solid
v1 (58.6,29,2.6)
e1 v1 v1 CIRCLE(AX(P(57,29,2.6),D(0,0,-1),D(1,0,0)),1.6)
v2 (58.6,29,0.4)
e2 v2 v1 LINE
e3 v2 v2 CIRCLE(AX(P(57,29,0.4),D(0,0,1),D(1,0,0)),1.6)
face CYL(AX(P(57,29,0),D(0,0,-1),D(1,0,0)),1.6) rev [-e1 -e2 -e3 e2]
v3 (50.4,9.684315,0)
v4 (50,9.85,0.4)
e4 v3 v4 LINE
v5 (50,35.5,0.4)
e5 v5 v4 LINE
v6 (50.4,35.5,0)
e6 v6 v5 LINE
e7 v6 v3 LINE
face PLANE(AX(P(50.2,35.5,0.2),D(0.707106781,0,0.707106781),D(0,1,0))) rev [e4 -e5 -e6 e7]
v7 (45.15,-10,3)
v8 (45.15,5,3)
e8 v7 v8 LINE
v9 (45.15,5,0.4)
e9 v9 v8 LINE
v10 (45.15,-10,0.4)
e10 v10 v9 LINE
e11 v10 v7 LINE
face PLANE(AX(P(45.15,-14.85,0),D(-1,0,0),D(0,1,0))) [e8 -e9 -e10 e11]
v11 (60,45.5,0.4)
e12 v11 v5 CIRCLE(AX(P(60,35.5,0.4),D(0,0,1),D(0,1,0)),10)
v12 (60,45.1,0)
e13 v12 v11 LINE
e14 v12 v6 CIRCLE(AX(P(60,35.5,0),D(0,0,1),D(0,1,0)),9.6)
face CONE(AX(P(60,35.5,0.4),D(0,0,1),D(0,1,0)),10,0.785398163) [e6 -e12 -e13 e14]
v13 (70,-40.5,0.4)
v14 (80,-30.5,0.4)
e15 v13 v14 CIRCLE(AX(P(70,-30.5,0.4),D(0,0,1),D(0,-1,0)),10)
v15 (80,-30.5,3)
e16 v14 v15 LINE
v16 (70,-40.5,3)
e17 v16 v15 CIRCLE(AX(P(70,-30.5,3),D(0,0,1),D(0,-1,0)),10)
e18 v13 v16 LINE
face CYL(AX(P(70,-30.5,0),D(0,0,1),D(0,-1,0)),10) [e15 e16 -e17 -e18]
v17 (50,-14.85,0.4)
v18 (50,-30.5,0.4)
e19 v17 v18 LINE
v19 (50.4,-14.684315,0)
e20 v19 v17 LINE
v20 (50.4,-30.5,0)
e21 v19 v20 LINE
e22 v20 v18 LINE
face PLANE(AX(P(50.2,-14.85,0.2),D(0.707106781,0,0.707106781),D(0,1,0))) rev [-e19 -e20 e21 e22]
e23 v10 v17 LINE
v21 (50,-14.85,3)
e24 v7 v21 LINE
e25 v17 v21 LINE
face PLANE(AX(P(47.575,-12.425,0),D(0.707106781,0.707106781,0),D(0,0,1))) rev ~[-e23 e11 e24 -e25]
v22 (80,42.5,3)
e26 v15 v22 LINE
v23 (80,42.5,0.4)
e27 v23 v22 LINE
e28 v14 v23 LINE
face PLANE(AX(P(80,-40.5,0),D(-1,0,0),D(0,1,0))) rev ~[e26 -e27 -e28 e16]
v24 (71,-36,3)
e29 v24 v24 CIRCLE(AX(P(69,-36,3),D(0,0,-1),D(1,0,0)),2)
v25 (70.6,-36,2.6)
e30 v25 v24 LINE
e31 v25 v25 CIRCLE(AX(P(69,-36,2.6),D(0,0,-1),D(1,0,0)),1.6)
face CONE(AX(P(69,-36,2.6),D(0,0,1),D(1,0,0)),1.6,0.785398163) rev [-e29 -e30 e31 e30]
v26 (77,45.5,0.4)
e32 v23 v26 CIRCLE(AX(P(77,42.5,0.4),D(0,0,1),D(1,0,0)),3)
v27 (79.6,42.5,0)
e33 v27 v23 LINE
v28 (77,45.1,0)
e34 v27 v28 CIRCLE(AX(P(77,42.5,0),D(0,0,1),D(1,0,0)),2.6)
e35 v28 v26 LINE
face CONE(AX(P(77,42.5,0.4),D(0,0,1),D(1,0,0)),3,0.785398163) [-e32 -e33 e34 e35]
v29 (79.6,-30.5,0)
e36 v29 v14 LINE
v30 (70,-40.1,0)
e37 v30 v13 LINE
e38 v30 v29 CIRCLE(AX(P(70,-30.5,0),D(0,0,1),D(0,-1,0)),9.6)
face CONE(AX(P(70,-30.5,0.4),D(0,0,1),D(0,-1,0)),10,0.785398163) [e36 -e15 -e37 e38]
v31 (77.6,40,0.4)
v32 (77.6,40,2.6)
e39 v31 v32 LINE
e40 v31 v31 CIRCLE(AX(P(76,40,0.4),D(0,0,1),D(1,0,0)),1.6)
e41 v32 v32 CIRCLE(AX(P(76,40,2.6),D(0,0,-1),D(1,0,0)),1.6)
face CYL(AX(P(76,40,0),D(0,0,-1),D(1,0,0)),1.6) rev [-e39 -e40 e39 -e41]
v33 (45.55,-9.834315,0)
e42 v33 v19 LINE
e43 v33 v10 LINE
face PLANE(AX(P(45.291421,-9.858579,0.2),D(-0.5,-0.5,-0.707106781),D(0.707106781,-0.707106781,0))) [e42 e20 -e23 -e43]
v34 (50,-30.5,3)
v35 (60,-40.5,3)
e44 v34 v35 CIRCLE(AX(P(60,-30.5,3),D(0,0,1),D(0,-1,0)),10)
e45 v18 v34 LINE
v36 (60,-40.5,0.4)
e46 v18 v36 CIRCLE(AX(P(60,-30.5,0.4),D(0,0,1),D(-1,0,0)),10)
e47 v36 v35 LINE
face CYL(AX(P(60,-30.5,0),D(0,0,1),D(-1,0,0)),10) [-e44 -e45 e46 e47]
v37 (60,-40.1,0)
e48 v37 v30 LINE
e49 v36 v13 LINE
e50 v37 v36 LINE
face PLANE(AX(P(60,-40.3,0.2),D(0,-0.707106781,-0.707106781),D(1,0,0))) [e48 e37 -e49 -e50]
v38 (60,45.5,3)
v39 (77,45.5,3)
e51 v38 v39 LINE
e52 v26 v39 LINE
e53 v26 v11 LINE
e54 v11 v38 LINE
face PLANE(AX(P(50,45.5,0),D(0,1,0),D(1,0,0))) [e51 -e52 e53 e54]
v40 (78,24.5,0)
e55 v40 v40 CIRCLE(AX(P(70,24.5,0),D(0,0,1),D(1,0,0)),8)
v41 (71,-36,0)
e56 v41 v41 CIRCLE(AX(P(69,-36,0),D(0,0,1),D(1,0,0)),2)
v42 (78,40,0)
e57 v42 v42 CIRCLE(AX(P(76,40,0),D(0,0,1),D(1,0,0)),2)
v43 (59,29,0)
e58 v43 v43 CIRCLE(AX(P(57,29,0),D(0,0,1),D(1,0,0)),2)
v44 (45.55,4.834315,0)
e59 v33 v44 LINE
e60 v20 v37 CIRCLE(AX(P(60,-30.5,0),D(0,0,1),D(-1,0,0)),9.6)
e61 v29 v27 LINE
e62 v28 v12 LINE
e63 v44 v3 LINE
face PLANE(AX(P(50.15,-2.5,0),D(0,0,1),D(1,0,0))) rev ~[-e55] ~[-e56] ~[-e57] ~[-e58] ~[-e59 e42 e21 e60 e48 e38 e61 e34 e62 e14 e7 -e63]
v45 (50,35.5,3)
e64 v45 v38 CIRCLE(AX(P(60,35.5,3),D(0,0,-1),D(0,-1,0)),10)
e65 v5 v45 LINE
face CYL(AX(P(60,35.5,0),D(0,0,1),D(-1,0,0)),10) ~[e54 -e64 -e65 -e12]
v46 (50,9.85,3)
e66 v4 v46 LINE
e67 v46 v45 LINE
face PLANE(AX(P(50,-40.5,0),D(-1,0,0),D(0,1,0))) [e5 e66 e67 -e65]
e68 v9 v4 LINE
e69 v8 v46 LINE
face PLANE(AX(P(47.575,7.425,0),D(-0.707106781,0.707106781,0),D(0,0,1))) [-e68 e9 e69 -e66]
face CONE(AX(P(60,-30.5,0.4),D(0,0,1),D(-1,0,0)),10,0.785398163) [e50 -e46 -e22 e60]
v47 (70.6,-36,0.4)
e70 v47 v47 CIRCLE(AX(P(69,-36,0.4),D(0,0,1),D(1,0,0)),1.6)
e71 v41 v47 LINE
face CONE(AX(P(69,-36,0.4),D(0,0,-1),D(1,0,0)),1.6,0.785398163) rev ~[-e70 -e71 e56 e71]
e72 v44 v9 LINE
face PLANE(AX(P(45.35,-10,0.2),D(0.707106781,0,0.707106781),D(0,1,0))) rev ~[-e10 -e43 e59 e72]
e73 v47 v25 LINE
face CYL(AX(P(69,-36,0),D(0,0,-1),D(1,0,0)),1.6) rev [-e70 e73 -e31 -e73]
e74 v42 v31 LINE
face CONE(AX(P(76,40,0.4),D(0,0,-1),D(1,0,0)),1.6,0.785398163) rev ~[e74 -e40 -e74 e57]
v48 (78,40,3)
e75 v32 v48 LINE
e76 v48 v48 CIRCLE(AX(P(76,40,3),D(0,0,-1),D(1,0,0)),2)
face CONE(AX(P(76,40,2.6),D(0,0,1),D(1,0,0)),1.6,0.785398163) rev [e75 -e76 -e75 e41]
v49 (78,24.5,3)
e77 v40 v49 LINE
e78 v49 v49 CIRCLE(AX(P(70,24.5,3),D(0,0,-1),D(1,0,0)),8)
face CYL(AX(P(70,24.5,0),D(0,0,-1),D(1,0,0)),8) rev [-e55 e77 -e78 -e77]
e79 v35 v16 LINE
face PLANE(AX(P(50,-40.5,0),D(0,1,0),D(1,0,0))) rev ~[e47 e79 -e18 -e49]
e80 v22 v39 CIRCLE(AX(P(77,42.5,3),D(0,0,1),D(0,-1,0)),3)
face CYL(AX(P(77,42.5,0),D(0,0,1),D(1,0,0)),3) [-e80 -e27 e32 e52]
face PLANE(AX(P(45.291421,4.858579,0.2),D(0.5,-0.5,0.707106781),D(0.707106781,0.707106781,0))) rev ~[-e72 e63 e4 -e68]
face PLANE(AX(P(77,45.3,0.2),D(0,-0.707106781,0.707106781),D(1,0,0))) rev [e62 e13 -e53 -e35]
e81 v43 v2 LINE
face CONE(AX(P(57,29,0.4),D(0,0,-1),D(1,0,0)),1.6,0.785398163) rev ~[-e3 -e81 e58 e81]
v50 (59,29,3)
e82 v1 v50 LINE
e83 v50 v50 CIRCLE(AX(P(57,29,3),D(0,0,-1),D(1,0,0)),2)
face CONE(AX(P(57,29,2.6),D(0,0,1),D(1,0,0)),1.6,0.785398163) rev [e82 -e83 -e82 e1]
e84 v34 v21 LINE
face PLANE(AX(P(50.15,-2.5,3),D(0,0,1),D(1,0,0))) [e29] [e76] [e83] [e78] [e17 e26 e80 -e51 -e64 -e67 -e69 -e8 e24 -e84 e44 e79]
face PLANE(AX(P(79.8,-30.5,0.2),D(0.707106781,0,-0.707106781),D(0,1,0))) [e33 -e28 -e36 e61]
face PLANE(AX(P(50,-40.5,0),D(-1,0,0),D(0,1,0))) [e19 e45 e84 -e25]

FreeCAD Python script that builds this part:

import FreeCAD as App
import Part
import Sketcher
from FreeCAD import Vector


def edges_at(feature, points):
    """Names of the edges that pass closest to the given points."""
    edges = feature.Shape.Edges
    near = lambda p: min(range(len(edges)), key=lambda i: edges[i].distToShape(Part.Vertex(*p))[0])
    return sorted({f"Edge{near(p) + 1}" for p in points})


def add_polygon(sketch, points):
    """Adds a closed chain of lines whose ends are joined by coincident constraints."""
    first, n = sketch.GeometryCount, len(points)
    for a, b in zip(points, points[1:] + points[:1]):
        sketch.addGeometry(Part.LineSegment(App.Vector(*a, 0), App.Vector(*b, 0)), False)
    for i in range(n):
        sketch.addConstraint(Sketcher.Constraint("Coincident", first + i, 2, first + (i + 1) % n, 1))

doc = App.newDocument("Part")
body = doc.addObject("PartDesign::Body", "Body")

sketch1 = body.newObject("Sketcher::SketchObject", "Sketch")
sketch1.AttachmentSupport = (doc.getObject("XY_Plane"), [""])
sketch1.MapMode = "FlatFace"
sketch1.addGeometry(Part.Circle(Vector(70, 24.5, 0), Vector(0, 0, 1), 8), False)
sketch1.addConstraint(Sketcher.Constraint("Diameter", 0, 16.0))
sketch1.addConstraint(Sketcher.Constraint("DistanceX", -1, 1, 0, 3, 70.0))
sketch1.addConstraint(Sketcher.Constraint("DistanceY", -1, 1, 0, 3, 24.5))
pad1 = body.newObject("PartDesign::Pad", "Pad")
pad1.Profile = sketch1
pad1.Length = 10
body2 = doc.addObject("PartDesign::Body", "Body001")

sketch2 = body2.newObject("Sketcher::SketchObject", "Sketch001")
sketch2.AttachmentSupport = (doc.getObject("XY_Plane001"), [""])
sketch2.MapMode = "FlatFace"
add_polygon(sketch2, [(45.15, 9.85), (45.15, -14.85), (55.15, -14.85), (55.15, 9.85)])
sketch2.addConstraint(Sketcher.Constraint("Vertical", 0))
sketch2.addConstraint(Sketcher.Constraint("Horizontal", 1))
sketch2.addConstraint(Sketcher.Constraint("Vertical", 2))
sketch2.addConstraint(Sketcher.Constraint("Horizontal", 3))
sketch2.addConstraint(Sketcher.Constraint("DistanceX", 1, 1, 1, 2, 10.0))
sketch2.addConstraint(Sketcher.Constraint("DistanceY", 0, 2, 0, 1, 24.7))
sketch2.addConstraint(Sketcher.Constraint("DistanceX", -1, 1, 0, 2, 45.15))
sketch2.addConstraint(Sketcher.Constraint("DistanceY", 0, 2, -1, 1, 14.85))
pad2 = body2.newObject("PartDesign::Pad", "Pad001")
pad2.Profile = sketch2
pad2.Length = 3
doc.recompute()

chamfer = body2.newObject("PartDesign::Chamfer", "Chamfer")
chamfer.Base = (pad2, edges_at(pad2, [(45.15, -14.85, 1.5), (45.15, 9.85, 1.5)]))
chamfer.Size = 4.85
body3 = doc.addObject("PartDesign::Body", "Body002")

sketch3 = body3.newObject("Sketcher::SketchObject", "Sketch002")
sketch3.AttachmentSupport = (doc.getObject("XY_Plane002"), [""])
sketch3.MapMode = "FlatFace"
sketch3.addGeometry(Part.Circle(Vector(76, 40, 0), Vector(0, 0, 1), 1.6), False)
sketch3.addConstraint(Sketcher.Constraint("Diameter", 0, 3.2))
sketch3.addConstraint(Sketcher.Constraint("DistanceX", -1, 1, 0, 3, 76.0))
sketch3.addConstraint(Sketcher.Constraint("DistanceY", -1, 1, 0, 3, 40.0))
pad3 = body3.newObject("PartDesign::Pad", "Pad002")
pad3.Profile = sketch3
pad3.Length = 10
body4 = doc.addObject("PartDesign::Body", "Body003")

sketch4 = body4.newObject("Sketcher::SketchObject", "Sketch003")
sketch4.AttachmentSupport = (doc.getObject("XY_Plane003"), [""])
sketch4.MapMode = "FlatFace"
sketch4.addGeometry(Part.Circle(Vector(57, 29, 0), Vector(0, 0, 1), 1.6), False)
sketch4.addConstraint(Sketcher.Constraint("Diameter", 0, 3.2))
sketch4.addConstraint(Sketcher.Constraint("DistanceX", -1, 1, 0, 3, 57.0))
sketch4.addConstraint(Sketcher.Constraint("DistanceY", -1, 1, 0, 3, 29.0))
pad4 = body4.newObject("PartDesign::Pad", "Pad003")
pad4.Profile = sketch4
pad4.Length = 10
body5 = doc.addObject("PartDesign::Body", "Body004")
body5.AllowCompound = True

sketch5 = body5.newObject("Sketcher::SketchObject", "Sketch004")
sketch5.AttachmentSupport = (doc.getObject("XY_Plane004"), [""])
sketch5.MapMode = "FlatFace"
sketch5.addGeometry(Part.Circle(Vector(69, -36, 0), Vector(0, 0, 1), 1.6), False)
sketch5.addConstraint(Sketcher.Constraint("Diameter", 0, 3.2))
sketch5.addConstraint(Sketcher.Constraint("DistanceX", -1, 1, 0, 3, 69.0))
sketch5.addConstraint(Sketcher.Constraint("DistanceY", 0, 3, -1, 1, 36.0))
pad5 = body5.newObject("PartDesign::Pad", "Pad004")
pad5.Profile = sketch5
pad5.Length = 10
doc.recompute()

boolean = body5.newObject("PartDesign::Boolean", "Boolean")
boolean.Type = "Fuse"
boolean.addObjects([body3])
doc.recompute()

boolean2 = body5.newObject("PartDesign::Boolean", "Boolean001")
boolean2.Type = "Fuse"
boolean2.addObjects([body4])
body6 = doc.addObject("PartDesign::Body", "Body005")

sketch6 = body6.newObject("Sketcher::SketchObject", "Sketch005")
sketch6.AttachmentSupport = (doc.getObject("XY_Plane005"), [""])
sketch6.MapMode = "FlatFace"
add_polygon(sketch6, [(50, 45.5), (50, -40.5), (80, -40.5), (80, 45.5)])
sketch6.addConstraint(Sketcher.Constraint("Vertical", 0))
sketch6.addConstraint(Sketcher.Constraint("Horizontal", 1))
sketch6.addConstraint(Sketcher.Constraint("Vertical", 2))
sketch6.addConstraint(Sketcher.Constraint("Horizontal", 3))
sketch6.addConstraint(Sketcher.Constraint("DistanceX", 1, 1, 1, 2, 30.0))
sketch6.addConstraint(Sketcher.Constraint("DistanceY", 0, 2, 0, 1, 86.0))
sketch6.addConstraint(Sketcher.Constraint("DistanceX", -1, 1, 0, 2, 50.0))
sketch6.addConstraint(Sketcher.Constraint("DistanceY", 0, 2, -1, 1, 40.5))
pad6 = body6.newObject("PartDesign::Pad", "Pad005")
pad6.Profile = sketch6
pad6.Length = 3
doc.recompute()

boolean3 = body6.newObject("PartDesign::Boolean", "Boolean002")
boolean3.Type = "Cut"
boolean3.addObjects([body5])
doc.recompute()

boolean4 = body6.newObject("PartDesign::Boolean", "Boolean003")
boolean4.Type = "Fuse"
boolean4.addObjects([body2])
doc.recompute()

fillet = body6.newObject("PartDesign::Fillet", "Fillet")
fillet.Base = (boolean4, edges_at(boolean4, [(50, -40.5, 1.5), (50, 45.5, 1.5)]))
fillet.Radius = 10
doc.recompute()

fillet2 = body6.newObject("PartDesign::Fillet", "Fillet001")
fillet2.Base = (fillet, edges_at(fillet, [(80, -40.5, 1.5)]))
fillet2.Radius = 10
doc.recompute()

fillet3 = body6.newObject("PartDesign::Fillet", "Fillet002")
fillet3.Base = (fillet2, edges_at(fillet2, [(80, 45.5, 1.5)]))
fillet3.Radius = 3
doc.recompute()

chamfer2 = body6.newObject("PartDesign::Chamfer", "Chamfer001")
chamfer2.Base = (fillet3, edges_at(fillet3, [
    (80, 6, 0),
    (79.121, 44.621, 0),
    (77.071, -37.571, 0),
    (68.5, 45.5, 0),
    (65, -40.5, 0),
    (52.929, 42.571, 0),
    (52.929, -37.571, 0),
    (50, 22.675, 0),
    (50, -22.675, 0),
    (47.575, 7.425, 0),
    (47.575, -12.425, 0),
    (45.15, -2.5, 0),
    (55.4, 29, 0),
    (67.4, -36, 0),
    (74.4, 40, 0),
]))
chamfer2.Size = 0.4
doc.recompute()

chamfer3 = body6.newObject("PartDesign::Chamfer", "Chamfer002")
chamfer3.Base = (chamfer2, edges_at(chamfer2, [(55.4, 29, 3), (67.4, -36, 3), (74.4, 40, 3)]))
chamfer3.Size = 0.4
doc.recompute()

boolean5 = body6.newObject("PartDesign::Boolean", "Boolean004")
boolean5.Type = "Cut"
boolean5.addObjects([body])

doc.recompute()
